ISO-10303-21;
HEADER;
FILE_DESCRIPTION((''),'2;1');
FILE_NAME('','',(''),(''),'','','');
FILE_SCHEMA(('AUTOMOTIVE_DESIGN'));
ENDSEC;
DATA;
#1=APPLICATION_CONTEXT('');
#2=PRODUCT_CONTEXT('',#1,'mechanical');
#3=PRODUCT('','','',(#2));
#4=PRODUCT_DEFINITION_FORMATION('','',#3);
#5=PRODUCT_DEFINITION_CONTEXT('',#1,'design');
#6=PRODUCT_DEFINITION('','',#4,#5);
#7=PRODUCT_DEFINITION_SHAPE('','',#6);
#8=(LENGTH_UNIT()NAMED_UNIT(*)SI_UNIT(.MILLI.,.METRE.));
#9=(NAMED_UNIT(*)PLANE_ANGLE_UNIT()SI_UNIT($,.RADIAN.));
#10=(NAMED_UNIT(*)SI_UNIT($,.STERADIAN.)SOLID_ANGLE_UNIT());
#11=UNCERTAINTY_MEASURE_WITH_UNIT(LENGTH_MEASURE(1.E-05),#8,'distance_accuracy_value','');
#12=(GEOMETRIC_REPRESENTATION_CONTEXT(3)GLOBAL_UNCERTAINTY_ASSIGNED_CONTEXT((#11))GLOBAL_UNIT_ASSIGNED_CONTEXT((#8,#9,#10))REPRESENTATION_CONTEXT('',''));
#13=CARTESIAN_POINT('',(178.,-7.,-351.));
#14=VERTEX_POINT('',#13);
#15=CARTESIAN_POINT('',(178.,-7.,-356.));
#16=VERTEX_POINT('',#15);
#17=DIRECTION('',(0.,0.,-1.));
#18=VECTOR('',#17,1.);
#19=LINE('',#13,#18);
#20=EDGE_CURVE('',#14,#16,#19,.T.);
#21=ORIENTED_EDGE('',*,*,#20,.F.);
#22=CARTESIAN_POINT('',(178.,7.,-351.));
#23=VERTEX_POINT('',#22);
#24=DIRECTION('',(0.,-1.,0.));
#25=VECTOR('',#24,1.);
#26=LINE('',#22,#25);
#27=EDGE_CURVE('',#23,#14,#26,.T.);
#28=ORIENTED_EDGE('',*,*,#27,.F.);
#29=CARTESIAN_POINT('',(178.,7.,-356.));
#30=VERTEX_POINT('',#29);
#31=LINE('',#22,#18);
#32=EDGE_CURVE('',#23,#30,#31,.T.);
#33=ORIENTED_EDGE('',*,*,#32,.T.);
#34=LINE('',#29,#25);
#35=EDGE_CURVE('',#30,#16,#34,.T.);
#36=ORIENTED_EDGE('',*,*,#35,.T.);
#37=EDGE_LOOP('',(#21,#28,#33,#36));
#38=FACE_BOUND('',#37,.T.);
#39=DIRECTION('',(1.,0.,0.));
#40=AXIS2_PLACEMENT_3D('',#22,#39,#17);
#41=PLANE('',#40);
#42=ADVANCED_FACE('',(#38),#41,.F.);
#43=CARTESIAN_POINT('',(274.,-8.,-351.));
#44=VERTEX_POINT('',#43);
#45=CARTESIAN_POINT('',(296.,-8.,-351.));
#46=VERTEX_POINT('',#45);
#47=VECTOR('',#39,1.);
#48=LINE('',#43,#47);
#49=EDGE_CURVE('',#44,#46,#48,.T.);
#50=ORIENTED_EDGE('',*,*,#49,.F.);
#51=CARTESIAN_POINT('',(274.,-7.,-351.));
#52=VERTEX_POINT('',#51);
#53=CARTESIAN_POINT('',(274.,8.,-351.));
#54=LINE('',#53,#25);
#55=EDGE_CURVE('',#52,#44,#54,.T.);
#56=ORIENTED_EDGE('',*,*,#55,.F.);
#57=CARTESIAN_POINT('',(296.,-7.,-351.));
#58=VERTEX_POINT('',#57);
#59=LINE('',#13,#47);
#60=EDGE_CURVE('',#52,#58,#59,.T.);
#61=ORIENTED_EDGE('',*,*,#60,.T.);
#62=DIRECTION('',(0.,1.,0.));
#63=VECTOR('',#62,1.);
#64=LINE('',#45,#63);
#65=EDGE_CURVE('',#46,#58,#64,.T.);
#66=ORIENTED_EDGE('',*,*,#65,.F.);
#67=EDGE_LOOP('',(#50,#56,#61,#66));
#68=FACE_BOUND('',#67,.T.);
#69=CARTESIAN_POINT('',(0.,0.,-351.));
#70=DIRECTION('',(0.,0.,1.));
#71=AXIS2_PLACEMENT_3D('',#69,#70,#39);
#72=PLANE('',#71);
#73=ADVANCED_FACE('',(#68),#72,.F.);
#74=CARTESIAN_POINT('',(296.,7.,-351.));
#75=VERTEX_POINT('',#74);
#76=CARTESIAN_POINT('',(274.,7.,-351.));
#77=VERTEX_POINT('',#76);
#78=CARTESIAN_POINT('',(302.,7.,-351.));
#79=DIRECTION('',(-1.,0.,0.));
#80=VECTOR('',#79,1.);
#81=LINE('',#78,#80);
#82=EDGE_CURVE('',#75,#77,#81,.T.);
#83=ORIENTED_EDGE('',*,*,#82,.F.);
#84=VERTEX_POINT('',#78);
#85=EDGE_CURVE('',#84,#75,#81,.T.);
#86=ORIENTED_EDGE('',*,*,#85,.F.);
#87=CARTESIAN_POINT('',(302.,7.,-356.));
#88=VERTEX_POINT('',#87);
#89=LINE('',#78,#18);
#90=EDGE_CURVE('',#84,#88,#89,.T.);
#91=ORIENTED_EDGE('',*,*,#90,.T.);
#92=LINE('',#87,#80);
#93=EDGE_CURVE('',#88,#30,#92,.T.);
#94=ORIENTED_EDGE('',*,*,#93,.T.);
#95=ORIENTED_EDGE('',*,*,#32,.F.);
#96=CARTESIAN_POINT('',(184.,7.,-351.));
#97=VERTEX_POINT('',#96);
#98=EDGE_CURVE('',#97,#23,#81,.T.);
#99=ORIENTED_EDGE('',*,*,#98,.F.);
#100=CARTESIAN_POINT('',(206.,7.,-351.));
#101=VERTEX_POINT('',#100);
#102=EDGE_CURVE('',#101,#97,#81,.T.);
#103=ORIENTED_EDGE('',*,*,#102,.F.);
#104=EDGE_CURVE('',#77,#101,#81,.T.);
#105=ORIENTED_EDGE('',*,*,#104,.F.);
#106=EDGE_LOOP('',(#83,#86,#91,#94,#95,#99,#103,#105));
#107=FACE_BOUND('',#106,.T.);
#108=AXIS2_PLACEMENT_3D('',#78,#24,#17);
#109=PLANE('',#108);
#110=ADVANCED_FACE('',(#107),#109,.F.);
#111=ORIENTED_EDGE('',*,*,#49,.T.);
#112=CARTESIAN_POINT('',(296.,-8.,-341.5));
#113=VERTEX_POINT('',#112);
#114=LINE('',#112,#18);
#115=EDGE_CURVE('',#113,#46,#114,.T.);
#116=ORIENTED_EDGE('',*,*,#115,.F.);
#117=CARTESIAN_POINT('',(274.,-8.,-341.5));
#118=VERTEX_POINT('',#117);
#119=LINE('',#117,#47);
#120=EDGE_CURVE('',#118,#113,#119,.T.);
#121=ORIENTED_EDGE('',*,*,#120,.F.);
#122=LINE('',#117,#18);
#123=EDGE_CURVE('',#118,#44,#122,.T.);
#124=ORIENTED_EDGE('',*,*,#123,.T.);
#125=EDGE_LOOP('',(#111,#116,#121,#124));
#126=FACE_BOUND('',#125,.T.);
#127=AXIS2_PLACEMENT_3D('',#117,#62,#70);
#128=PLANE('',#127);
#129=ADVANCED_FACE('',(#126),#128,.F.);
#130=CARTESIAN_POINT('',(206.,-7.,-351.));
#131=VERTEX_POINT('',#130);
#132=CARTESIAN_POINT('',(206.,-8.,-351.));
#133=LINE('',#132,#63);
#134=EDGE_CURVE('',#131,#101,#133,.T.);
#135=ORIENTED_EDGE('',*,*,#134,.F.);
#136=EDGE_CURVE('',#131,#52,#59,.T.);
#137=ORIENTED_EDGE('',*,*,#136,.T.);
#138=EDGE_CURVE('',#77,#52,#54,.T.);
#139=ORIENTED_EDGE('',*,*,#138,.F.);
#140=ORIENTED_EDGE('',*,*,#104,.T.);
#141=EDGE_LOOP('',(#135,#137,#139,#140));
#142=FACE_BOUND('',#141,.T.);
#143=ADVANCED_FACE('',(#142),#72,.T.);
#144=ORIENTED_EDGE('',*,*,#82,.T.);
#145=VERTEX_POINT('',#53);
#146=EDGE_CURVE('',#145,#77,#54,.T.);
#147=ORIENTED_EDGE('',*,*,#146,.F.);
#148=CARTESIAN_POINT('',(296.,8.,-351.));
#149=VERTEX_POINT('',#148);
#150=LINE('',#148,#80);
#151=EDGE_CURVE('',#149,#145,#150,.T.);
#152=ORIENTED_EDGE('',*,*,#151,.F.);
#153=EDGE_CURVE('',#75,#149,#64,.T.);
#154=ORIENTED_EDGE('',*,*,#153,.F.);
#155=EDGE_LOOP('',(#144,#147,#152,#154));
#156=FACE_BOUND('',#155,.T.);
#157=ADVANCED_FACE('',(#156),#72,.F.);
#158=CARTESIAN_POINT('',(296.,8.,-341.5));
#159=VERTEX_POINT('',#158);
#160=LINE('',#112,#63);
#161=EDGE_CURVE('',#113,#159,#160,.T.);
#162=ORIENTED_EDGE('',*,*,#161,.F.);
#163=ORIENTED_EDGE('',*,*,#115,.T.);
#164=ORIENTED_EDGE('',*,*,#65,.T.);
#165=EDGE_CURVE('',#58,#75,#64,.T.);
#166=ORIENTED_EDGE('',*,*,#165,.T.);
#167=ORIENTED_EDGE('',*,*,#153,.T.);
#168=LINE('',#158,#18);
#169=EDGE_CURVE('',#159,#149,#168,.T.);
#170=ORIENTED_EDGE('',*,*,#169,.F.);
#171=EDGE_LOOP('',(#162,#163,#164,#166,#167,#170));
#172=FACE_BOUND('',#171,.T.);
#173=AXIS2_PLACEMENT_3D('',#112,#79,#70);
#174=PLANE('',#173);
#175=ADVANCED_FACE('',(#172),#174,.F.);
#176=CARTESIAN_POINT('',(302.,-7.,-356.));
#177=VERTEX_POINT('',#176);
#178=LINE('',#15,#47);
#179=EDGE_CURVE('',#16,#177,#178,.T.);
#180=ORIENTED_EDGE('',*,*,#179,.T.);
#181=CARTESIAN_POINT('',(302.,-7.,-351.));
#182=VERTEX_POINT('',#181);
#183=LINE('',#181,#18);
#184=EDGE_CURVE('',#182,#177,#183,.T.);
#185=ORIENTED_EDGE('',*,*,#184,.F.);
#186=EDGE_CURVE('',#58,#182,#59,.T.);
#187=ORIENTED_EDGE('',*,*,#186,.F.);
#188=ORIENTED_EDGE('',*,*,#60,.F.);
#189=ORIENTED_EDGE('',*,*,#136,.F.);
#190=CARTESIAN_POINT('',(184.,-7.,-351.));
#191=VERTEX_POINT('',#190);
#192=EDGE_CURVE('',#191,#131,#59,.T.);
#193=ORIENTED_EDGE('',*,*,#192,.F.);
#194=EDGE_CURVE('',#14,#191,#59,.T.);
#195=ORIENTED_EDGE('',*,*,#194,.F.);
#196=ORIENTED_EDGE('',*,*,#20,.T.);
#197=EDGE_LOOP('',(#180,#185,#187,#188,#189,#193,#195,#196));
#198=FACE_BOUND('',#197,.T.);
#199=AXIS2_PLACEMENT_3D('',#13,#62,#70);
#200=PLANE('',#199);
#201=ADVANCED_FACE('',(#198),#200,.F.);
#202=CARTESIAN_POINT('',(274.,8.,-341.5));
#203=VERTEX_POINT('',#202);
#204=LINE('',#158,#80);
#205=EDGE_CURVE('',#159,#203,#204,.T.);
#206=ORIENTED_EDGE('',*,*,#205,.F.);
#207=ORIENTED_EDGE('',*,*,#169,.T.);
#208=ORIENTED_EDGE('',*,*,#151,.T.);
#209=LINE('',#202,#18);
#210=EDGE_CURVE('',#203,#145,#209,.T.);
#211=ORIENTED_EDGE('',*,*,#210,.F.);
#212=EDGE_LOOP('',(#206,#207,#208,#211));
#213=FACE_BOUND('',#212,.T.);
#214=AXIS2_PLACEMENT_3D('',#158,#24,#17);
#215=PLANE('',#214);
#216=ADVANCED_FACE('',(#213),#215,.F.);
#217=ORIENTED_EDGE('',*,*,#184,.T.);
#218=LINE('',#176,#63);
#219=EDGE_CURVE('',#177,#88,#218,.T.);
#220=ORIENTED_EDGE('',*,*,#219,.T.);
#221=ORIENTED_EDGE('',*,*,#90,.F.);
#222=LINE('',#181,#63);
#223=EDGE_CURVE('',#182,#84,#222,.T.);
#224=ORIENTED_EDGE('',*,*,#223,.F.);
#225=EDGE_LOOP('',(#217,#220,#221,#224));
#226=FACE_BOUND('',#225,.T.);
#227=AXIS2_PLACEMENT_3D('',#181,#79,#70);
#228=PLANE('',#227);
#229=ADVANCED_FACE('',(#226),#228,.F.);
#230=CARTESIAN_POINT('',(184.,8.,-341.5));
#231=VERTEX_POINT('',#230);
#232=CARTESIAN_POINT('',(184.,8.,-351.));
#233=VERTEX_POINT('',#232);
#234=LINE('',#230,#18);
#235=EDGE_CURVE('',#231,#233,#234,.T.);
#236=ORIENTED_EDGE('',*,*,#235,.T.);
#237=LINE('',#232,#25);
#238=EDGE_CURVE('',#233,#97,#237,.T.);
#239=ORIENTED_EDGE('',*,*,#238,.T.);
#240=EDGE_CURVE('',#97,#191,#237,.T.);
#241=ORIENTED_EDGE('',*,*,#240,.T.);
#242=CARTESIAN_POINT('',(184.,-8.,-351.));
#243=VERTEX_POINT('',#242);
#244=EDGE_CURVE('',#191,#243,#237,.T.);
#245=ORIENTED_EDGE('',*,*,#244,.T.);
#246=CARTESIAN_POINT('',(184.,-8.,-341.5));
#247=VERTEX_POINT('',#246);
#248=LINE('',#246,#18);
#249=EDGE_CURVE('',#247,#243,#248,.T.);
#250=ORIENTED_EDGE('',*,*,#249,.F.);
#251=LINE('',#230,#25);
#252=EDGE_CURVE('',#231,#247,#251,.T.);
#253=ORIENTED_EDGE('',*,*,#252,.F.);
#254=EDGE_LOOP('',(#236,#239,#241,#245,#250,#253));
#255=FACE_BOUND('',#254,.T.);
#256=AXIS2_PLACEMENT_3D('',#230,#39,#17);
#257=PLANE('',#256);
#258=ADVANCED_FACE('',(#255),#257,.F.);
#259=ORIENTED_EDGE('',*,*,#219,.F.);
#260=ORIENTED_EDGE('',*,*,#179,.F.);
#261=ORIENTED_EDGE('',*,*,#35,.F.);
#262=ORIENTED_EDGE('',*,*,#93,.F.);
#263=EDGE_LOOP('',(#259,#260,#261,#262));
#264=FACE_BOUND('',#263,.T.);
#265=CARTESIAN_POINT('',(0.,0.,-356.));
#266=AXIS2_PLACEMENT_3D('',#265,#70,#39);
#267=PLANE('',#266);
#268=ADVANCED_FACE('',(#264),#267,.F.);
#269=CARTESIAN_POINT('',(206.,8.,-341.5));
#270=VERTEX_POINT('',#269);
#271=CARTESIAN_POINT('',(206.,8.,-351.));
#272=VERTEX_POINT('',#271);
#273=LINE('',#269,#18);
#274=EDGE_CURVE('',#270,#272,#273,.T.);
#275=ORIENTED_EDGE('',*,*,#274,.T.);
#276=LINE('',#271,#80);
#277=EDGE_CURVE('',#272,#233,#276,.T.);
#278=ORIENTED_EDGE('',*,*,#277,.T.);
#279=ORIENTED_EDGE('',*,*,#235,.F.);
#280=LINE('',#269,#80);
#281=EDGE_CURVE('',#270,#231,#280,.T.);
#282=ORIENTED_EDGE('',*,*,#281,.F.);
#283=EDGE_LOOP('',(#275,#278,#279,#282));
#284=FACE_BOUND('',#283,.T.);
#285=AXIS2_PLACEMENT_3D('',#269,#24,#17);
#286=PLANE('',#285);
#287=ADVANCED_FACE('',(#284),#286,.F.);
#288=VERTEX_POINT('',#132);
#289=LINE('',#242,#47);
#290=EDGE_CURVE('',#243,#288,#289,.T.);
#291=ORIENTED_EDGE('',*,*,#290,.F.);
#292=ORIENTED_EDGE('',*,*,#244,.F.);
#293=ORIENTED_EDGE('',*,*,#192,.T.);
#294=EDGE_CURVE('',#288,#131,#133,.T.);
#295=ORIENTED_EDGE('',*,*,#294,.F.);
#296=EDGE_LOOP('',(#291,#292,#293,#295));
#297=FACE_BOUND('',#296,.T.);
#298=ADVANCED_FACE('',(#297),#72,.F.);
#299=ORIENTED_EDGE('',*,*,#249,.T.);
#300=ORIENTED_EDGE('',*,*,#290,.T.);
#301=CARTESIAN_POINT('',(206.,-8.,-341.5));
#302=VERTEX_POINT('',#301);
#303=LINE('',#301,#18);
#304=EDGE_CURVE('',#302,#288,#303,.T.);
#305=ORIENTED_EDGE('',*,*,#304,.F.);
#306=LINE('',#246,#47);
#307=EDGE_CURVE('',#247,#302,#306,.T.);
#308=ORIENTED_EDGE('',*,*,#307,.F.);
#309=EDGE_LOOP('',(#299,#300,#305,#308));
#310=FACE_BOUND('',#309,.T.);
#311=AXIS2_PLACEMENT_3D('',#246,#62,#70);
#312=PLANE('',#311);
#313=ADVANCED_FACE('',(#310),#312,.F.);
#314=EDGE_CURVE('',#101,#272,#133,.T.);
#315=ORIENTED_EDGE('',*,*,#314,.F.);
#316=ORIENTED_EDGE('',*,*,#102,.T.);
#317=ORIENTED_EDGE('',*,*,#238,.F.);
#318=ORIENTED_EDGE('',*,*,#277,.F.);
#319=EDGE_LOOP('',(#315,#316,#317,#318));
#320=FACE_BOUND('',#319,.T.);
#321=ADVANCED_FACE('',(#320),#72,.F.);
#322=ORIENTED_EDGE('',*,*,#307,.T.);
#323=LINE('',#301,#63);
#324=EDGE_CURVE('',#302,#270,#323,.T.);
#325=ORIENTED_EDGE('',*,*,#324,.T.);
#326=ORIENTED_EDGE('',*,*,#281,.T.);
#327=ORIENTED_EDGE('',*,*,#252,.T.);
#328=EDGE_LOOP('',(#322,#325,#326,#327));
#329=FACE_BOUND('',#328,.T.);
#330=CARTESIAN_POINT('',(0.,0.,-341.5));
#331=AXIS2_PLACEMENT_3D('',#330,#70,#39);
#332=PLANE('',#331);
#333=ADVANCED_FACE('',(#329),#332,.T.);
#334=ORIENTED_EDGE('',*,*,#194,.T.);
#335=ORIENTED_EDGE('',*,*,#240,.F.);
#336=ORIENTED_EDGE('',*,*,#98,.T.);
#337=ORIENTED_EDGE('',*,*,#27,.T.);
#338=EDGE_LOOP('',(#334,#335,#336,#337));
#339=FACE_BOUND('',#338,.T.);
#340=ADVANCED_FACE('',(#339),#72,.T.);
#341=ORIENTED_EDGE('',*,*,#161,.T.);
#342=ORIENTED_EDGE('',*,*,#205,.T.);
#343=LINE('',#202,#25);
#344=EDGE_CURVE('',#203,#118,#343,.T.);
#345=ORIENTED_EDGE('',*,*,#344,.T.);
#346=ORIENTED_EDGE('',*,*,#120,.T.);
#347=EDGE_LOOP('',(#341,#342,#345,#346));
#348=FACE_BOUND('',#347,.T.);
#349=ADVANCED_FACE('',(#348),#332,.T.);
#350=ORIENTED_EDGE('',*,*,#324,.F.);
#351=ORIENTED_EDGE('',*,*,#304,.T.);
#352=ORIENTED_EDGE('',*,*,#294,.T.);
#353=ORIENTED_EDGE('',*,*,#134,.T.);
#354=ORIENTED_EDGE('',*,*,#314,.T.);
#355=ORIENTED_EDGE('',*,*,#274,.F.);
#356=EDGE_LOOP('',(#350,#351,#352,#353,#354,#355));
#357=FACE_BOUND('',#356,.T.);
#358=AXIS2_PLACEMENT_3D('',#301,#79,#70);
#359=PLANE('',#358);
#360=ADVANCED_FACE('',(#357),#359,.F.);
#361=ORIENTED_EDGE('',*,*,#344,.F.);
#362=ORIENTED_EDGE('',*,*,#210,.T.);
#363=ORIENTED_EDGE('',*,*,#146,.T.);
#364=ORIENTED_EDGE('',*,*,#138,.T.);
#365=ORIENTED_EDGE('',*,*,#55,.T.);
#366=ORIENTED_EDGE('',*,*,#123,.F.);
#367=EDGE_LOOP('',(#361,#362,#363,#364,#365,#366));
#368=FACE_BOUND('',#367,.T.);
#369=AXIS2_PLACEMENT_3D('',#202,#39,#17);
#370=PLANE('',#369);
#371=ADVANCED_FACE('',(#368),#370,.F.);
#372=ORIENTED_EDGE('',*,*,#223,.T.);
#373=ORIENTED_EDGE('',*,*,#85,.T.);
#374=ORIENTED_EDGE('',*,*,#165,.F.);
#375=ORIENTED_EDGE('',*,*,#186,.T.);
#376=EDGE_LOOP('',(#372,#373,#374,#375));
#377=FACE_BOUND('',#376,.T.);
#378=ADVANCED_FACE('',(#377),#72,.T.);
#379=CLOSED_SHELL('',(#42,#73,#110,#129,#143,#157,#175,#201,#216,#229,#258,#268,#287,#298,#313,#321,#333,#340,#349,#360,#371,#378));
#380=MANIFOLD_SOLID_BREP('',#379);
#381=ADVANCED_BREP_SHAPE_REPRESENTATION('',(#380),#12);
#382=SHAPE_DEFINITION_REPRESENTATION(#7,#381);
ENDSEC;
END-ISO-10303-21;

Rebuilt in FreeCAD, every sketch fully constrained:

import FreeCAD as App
import Part
import Sketcher
Q = App.Units.Quantity


def add_polygon(sketch, points):
    """Adds a closed chain of lines whose ends are joined by coincident constraints."""
    first, n = sketch.GeometryCount, len(points)
    for a, b in zip(points, points[1:] + points[:1]):
        sketch.addGeometry(Part.LineSegment(App.Vector(*a, 0), App.Vector(*b, 0)), False)
    for i in range(n):
        sketch.addConstraint(Sketcher.Constraint("Coincident", first + i, 2, first + (i + 1) % n, 1))

doc = App.newDocument("Part")
body = doc.addObject("PartDesign::Body", "Body")

sketch1 = body.newObject("Sketcher::SketchObject", "Sketch")
sketch1.AttachmentSupport = (doc.getObject("XY_Plane"), [""])
sketch1.MapMode = "FlatFace"
sketch1.AttachmentOffset = App.Placement(App.Vector(0, 0, -356), App.Rotation())
add_polygon(sketch1, [(178, 7), (178, -7), (302, -7), (302, 7)])
sketch1.addConstraint(Sketcher.Constraint("Vertical", 0))
sketch1.addConstraint(Sketcher.Constraint("Horizontal", 1))
sketch1.addConstraint(Sketcher.Constraint("Vertical", 2))
sketch1.addConstraint(Sketcher.Constraint("Horizontal", 3))
sketch1.addConstraint(Sketcher.Constraint("DistanceX", 1, 1, 1, 2, Q("124 mm")))
sketch1.addConstraint(Sketcher.Constraint("DistanceY", 0, 2, 0, 1, Q("14 mm")))
sketch1.addConstraint(Sketcher.Constraint("DistanceX", -1, 1, 0, 2, Q("178 mm")))
sketch1.addConstraint(Sketcher.Constraint("DistanceY", 0, 2, -1, 1, Q("7 mm")))
pad1 = body.newObject("PartDesign::Pad", "Pad")
pad1.Profile = sketch1
pad1.Length = 5
body2 = doc.addObject("PartDesign::Body", "Body001")

sketch2 = body2.newObject("Sketcher::SketchObject", "Sketch001")
sketch2.AttachmentSupport = (doc.getObject("XY_Plane001"), [""])
sketch2.MapMode = "FlatFace"
sketch2.AttachmentOffset = App.Placement(App.Vector(0, 0, -351), App.Rotation())
add_polygon(sketch2, [(274, 8), (274, -8), (296, -8), (296, 8)])
sketch2.addConstraint(Sketcher.Constraint("Vertical", 0))
sketch2.addConstraint(Sketcher.Constraint("Horizontal", 1))
sketch2.addConstraint(Sketcher.Constraint("Vertical", 2))
sketch2.addConstraint(Sketcher.Constraint("Horizontal", 3))
sketch2.addConstraint(Sketcher.Constraint("DistanceX", 1, 1, 1, 2, Q("22 mm")))
sketch2.addConstraint(Sketcher.Constraint("DistanceY", 0, 2, 0, 1, Q("16 mm")))
sketch2.addConstraint(Sketcher.Constraint("DistanceX", -1, 1, 0, 2, Q("274 mm")))
sketch2.addConstraint(Sketcher.Constraint("DistanceY", 0, 2, -1, 1, Q("8 mm")))
pad2 = body2.newObject("PartDesign::Pad", "Pad001")
pad2.Profile = sketch2
pad2.Length = 9.5
body3 = doc.addObject("PartDesign::Body", "Body002")

sketch3 = body3.newObject("Sketcher::SketchObject", "Sketch002")
sketch3.AttachmentSupport = (doc.getObject("XY_Plane002"), [""])
sketch3.MapMode = "FlatFace"
sketch3.AttachmentOffset = App.Placement(App.Vector(0, 0, -351), App.Rotation())
add_polygon(sketch3, [(184, 8), (184, -8), (206, -8), (206, 8)])
sketch3.addConstraint(Sketcher.Constraint("Vertical", 0))
sketch3.addConstraint(Sketcher.Constraint("Horizontal", 1))
sketch3.addConstraint(Sketcher.Constraint("Vertical", 2))
sketch3.addConstraint(Sketcher.Constraint("Horizontal", 3))
sketch3.addConstraint(Sketcher.Constraint("DistanceX", 1, 1, 1, 2, Q("22 mm")))
sketch3.addConstraint(Sketcher.Constraint("DistanceY", 0, 2, 0, 1, Q("16 mm")))
sketch3.addConstraint(Sketcher.Constraint("DistanceX", -1, 1, 0, 2, Q("184 mm")))
sketch3.addConstraint(Sketcher.Constraint("DistanceY", 0, 2, -1, 1, Q("8 mm")))
pad3 = body3.newObject("PartDesign::Pad", "Pad002")
pad3.Profile = sketch3
pad3.Length = 9.5
doc.recompute()

boolean = body.newObject("PartDesign::Boolean", "Boolean")
boolean.Type = "Fuse"
boolean.addObjects([body2])
doc.recompute()

boolean2 = body.newObject("PartDesign::Boolean", "Boolean001")
boolean2.Type = "Fuse"
boolean2.addObjects([body3])

doc.recompute()
